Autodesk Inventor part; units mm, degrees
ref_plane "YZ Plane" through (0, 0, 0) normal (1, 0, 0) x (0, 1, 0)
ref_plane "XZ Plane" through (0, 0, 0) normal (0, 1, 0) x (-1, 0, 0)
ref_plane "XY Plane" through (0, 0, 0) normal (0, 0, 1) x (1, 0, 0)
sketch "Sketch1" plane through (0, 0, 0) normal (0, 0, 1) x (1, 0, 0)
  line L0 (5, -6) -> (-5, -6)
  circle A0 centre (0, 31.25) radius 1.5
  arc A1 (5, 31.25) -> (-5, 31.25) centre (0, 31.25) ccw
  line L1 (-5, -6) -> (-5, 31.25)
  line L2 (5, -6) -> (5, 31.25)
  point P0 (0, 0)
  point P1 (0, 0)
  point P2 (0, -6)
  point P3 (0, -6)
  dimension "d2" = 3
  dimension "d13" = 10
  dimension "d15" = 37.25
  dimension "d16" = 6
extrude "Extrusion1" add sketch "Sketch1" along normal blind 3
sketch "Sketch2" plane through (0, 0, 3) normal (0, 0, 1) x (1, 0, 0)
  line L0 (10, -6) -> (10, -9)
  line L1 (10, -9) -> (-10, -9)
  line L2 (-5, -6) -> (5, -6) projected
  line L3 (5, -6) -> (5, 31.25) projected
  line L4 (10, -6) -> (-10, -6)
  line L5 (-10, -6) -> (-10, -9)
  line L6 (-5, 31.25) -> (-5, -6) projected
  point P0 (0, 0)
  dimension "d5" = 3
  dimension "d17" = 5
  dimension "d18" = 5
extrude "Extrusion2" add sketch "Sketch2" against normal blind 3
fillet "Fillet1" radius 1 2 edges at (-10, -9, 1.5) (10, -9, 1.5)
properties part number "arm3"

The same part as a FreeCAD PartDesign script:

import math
import FreeCAD as App
import Part
import Sketcher
Q = App.Units.Quantity


def edges_at(feature, points):
    """Names of the edges that pass closest to the given points."""
    edges = feature.Shape.Edges
    near = lambda p: min(range(len(edges)), key=lambda i: edges[i].distToShape(Part.Vertex(*p))[0])
    return sorted({f"Edge{near(p) + 1}" for p in points})

doc = App.newDocument("Part")
params = doc.addObject("Spreadsheet::Sheet", "Params")
for row, (alias, value) in enumerate([
    ("sketch1_diameter", "3 mm"),
    ("sketch1_radius", "5 mm"),
    ("sketch1_height", "37.25 mm"),
    ("pad1_length", "3 mm"),
    ("sketch2_height", "3 mm"),
    ("sketch2_width", "20 mm"),
    ("pad2_length", "3 mm"),
    ("fillet_radius", "1 mm"),
], start=1):
    params.set(f"A{row}", alias)
    params.set(f"B{row}", "=" + value)
    params.setAlias(f"B{row}", alias)

body = doc.addObject("PartDesign::Body", "Body")

# Sketch on XY plane
sketch1 = body.newObject("Sketcher::SketchObject", "Sketch")
sketch1.AttachmentSupport = (doc.getObject("XY_Plane"), [""])
sketch1.MapMode = "FlatFace"
sketch1.addGeometry([
    Part.LineSegment(App.Vector(-5, -6, 0), App.Vector(5, -6, 0)),  # 0
    Part.LineSegment(App.Vector(5, -6, 0), App.Vector(5, 31.25, 0)),  # 1
    Part.ArcOfCircle(Part.Circle(App.Vector(0, 31.25, 0), App.Vector(0, 0, 1), 5), math.radians(0), math.radians(180)),  # 2
    Part.LineSegment(App.Vector(-5, 31.25, 0), App.Vector(-5, -6, 0)),  # 3
    Part.Circle(App.Vector(0, 31.25, 0), App.Vector(0, 0, 1), 1.5),  # 4
], False)
sketch1.addConstraint([
    Sketcher.Constraint("Coincident", 0, 2, 1, 1),
    Sketcher.Constraint("Tangent", 1, 2, 2, 1),
    Sketcher.Constraint("Tangent", 2, 2, 3, 1),
    Sketcher.Constraint("Coincident", 3, 2, 0, 1),
    Sketcher.Constraint("Horizontal", 0),
    Sketcher.Constraint("Vertical", 1),
    Sketcher.Constraint("Vertical", 3),
    Sketcher.Constraint("Coincident", 4, 3, 2, 3),
    Sketcher.Constraint("PointOnObject", 2, 3, -2),
    Sketcher.Constraint("Diameter", 4, Q("3 mm")),
    Sketcher.Constraint("Radius", 2, Q("5 mm")),
    Sketcher.Constraint("DistanceY", 0, 2, -1, 1, Q("6 mm")),
    Sketcher.Constraint("DistanceY", 1, 1, 1, 2, Q("37.25 mm")),
])
sketch1.setExpression("Constraints[9]", "Params.sketch1_diameter")
sketch1.setExpression("Constraints[10]", "Params.sketch1_radius")
sketch1.setExpression("Constraints[12]", "Params.sketch1_height")
pad1 = body.newObject("PartDesign::Pad", "Pad")
pad1.Profile = sketch1
pad1.setExpression("Length", "Params.pad1_length")

# Sketch on XY plane
sketch2 = body.newObject("Sketcher::SketchObject", "Sketch001")
sketch2.AttachmentSupport = (doc.getObject("XY_Plane"), [""])
sketch2.MapMode = "FlatFace"
sketch2.AttachmentOffset = App.Placement(App.Vector(0, 0, 3), App.Rotation())
sketch2.addGeometry([
    Part.LineSegment(App.Vector(10, -9, 0), App.Vector(10, -6, 0)),
    Part.LineSegment(App.Vector(10, -6, 0), App.Vector(-10, -6, 0)),
    Part.LineSegment(App.Vector(-10, -6, 0), App.Vector(-10, -9, 0)),
    Part.LineSegment(App.Vector(-10, -9, 0), App.Vector(10, -9, 0)),
], False)
sketch2.addConstraint([
    Sketcher.Constraint("Coincident", 0, 2, 1, 1),
    Sketcher.Constraint("Coincident", 1, 2, 2, 1),
    Sketcher.Constraint("Coincident", 2, 2, 3, 1),
    Sketcher.Constraint("Coincident", 3, 2, 0, 1),
    Sketcher.Constraint("Vertical", 0),
    Sketcher.Constraint("Horizontal", 1),
    Sketcher.Constraint("Vertical", 2),
    Sketcher.Constraint("Horizontal", 3),
    Sketcher.Constraint("DistanceY", 0, 1, 0, 2, Q("3 mm")),
    Sketcher.Constraint("DistanceX", 1, 2, 1, 1, Q("20 mm")),
    Sketcher.Constraint("DistanceX", -1, 1, 0, 2, Q("10 mm")),
    Sketcher.Constraint("DistanceY", 0, 2, -1, 1, Q("6 mm")),
])
sketch2.setExpression("Constraints[8]", "Params.sketch2_height")
sketch2.setExpression("Constraints[9]", "Params.sketch2_width")
pad2 = body.newObject("PartDesign::Pad", "Pad001")
pad2.Profile = sketch2
pad2.setExpression("Length", "Params.pad2_length")
pad2.Reversed = True
doc.recompute()

fillet = body.newObject("PartDesign::Fillet", "Fillet")
fillet.Base = (pad2, edges_at(pad2, [(-10, -9, 1.5), (10, -9, 1.5)]))
fillet.setExpression("Radius", "Params.fillet_radius")

doc.recompute()
